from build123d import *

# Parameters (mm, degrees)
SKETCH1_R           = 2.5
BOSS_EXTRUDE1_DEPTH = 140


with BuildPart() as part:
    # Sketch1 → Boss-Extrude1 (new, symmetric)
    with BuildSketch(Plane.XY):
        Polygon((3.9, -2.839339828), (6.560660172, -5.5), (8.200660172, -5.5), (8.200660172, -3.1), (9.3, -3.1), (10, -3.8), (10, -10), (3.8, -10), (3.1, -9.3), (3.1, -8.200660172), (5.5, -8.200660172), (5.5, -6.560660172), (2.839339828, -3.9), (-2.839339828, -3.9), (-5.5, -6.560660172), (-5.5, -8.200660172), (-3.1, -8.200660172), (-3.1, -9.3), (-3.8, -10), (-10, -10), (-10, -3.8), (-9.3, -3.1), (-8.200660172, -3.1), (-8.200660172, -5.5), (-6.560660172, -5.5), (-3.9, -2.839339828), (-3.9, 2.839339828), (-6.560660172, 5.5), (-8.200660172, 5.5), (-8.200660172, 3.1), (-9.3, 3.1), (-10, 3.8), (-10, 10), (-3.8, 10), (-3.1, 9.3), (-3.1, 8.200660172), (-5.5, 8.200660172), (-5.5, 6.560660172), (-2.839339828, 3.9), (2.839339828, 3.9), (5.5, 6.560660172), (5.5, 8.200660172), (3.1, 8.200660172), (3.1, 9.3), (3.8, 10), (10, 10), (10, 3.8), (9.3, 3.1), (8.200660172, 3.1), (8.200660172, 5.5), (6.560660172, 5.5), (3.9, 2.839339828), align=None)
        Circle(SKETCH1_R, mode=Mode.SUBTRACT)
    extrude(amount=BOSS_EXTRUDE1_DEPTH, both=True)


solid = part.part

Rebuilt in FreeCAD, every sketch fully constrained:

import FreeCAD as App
import Part
import Sketcher

V = App.Vector


def add_polygon(sketch, points):
    """Adds a closed chain of lines whose ends are joined by coincident constraints."""
    first, n = sketch.GeometryCount, len(points)
    for a, b in zip(points, points[1:] + points[:1]):
        sketch.addGeometry(Part.LineSegment(App.Vector(*a, 0), App.Vector(*b, 0)), False)
    for i in range(n):
        sketch.addConstraint(Sketcher.Constraint("Coincident", first + i, 2, first + (i + 1) % n, 1))

doc = App.newDocument("Part")
params = doc.addObject("Spreadsheet::Sheet", "Params")
for row, (alias, value) in enumerate([
    ("sketch1_diameter", "5 mm"),
    ("sketch1_width", "6.2 mm"),
    ("sketch1_width2", "2.4 mm"),
    ("sketch1_width3", "1.64 mm"),
    ("pad1_length", "280 mm"),
], start=1):
    params.set(f"A{row}", alias)
    params.set(f"B{row}", "=" + value)
    params.setAlias(f"B{row}", alias)

body = doc.addObject("PartDesign::Body", "Body")

sketch1 = body.newObject("Sketcher::SketchObject", "Sketch")
sketch1.AttachmentSupport = (doc.getObject("XY_Plane"), [""])
sketch1.MapMode = "FlatFace"
add_polygon(sketch1, [(6.6, -5.5), (3.9, -2.8), (3.9, 2.8), (6.6, 5.5), (8.2, 5.5), (8.2, 3.1), (9.3, 3.1), (10, 3.8), (10, 10), (3.8, 10), (3.1, 9.3), (3.1, 8.2), (5.5, 8.2), (5.5, 6.6), (2.8, 3.9), (-2.8, 3.9), (-5.5, 6.6), (-5.5, 8.2), (-3.1, 8.2), (-3.1, 9.3), (-3.8, 10), (-10, 10), (-10, 3.8), (-9.3, 3.1), (-8.2, 3.1), (-8.2, 5.5), (-6.6, 5.5), (-3.9, 2.8), (-3.9, -2.8), (-6.6, -5.5), (-8.2, -5.5), (-8.2, -3.1), (-9.3, -3.1), (-10, -3.8), (-10, -10), (-3.8, -10), (-3.1, -9.3), (-3.1, -8.2), (-5.5, -8.2), (-5.5, -6.6), (-2.8, -3.9), (2.8, -3.9), (5.5, -6.6), (5.5, -8.2), (3.1, -8.2), (3.1, -9.3), (3.8, -10), (10, -10), (10, -3.8), (9.3, -3.1), (8.2, -3.1), (8.2, -5.5)])
sketch1.addGeometry(Part.Circle(V(0, 0, 0), V(0, 0, 1), 2.5), False)
sketch1.addConstraint(Sketcher.Constraint("Vertical", 1))
sketch1.addConstraint(Sketcher.Constraint("Horizontal", 3))
sketch1.addConstraint(Sketcher.Constraint("Vertical", 4))
sketch1.addConstraint(Sketcher.Constraint("Horizontal", 5))
sketch1.addConstraint(Sketcher.Constraint("Vertical", 7))
sketch1.addConstraint(Sketcher.Constraint("Horizontal", 8))
sketch1.addConstraint(Sketcher.Constraint("Vertical", 10))
sketch1.addConstraint(Sketcher.Constraint("Horizontal", 11))
sketch1.addConstraint(Sketcher.Constraint("Vertical", 12))
sketch1.addConstraint(Sketcher.Constraint("Horizontal", 14))
sketch1.addConstraint(Sketcher.Constraint("Vertical", 16))
sketch1.addConstraint(Sketcher.Constraint("Horizontal", 17))
sketch1.addConstraint(Sketcher.Constraint("Vertical", 18))
sketch1.addConstraint(Sketcher.Constraint("Horizontal", 20))
sketch1.addConstraint(Sketcher.Constraint("Vertical", 21))
sketch1.addConstraint(Sketcher.Constraint("Horizontal", 23))
sketch1.addConstraint(Sketcher.Constraint("Vertical", 24))
sketch1.addConstraint(Sketcher.Constraint("Horizontal", 25))
sketch1.addConstraint(Sketcher.Constraint("Vertical", 27))
sketch1.addConstraint(Sketcher.Constraint("Horizontal", 29))
sketch1.addConstraint(Sketcher.Constraint("Vertical", 30))
sketch1.addConstraint(Sketcher.Constraint("Horizontal", 31))
sketch1.addConstraint(Sketcher.Constraint("Vertical", 33))
sketch1.addConstraint(Sketcher.Constraint("Horizontal", 34))
sketch1.addConstraint(Sketcher.Constraint("Vertical", 36))
sketch1.addConstraint(Sketcher.Constraint("Horizontal", 37))
sketch1.addConstraint(Sketcher.Constraint("Vertical", 38))
sketch1.addConstraint(Sketcher.Constraint("Horizontal", 40))
sketch1.addConstraint(Sketcher.Constraint("Vertical", 42))
sketch1.addConstraint(Sketcher.Constraint("Horizontal", 43))
sketch1.addConstraint(Sketcher.Constraint("Vertical", 44))
sketch1.addConstraint(Sketcher.Constraint("Horizontal", 46))
sketch1.addConstraint(Sketcher.Constraint("Vertical", 47))
sketch1.addConstraint(Sketcher.Constraint("Horizontal", 49))
sketch1.addConstraint(Sketcher.Constraint("Vertical", 50))
sketch1.addConstraint(Sketcher.Constraint("Horizontal", 51))
sketch1.addConstraint(Sketcher.Constraint("Coincident", 52, 3, -1, 1))
sketch1.addConstraint(Sketcher.Constraint("Symmetric", 0, 2, 26, 2, -1, 1))
sketch1.addConstraint(Sketcher.Constraint("Symmetric", 2, 2, 28, 2, -1, 1))
sketch1.addConstraint(Sketcher.Constraint("Symmetric", 4, 2, 30, 2, -1, 1))
sketch1.addConstraint(Sketcher.Constraint("Symmetric", 6, 2, 32, 2, -1, 1))
sketch1.addConstraint(Sketcher.Constraint("Symmetric", 8, 2, 34, 2, -1, 1))
sketch1.addConstraint(Sketcher.Constraint("Symmetric", 9, 2, 35, 2, -1, 1))
sketch1.addConstraint(Sketcher.Constraint("Symmetric", 11, 2, 37, 2, -1, 1))
sketch1.addConstraint(Sketcher.Constraint("Symmetric", 13, 2, 39, 2, -1, 1))
sketch1.addConstraint(Sketcher.Constraint("Symmetric", 15, 2, 41, 2, -1, 1))
sketch1.addConstraint(Sketcher.Constraint("Symmetric", 17, 2, 43, 2, -1, 1))
sketch1.addConstraint(Sketcher.Constraint("Symmetric", 19, 2, 45, 2, -1, 1))
sketch1.addConstraint(Sketcher.Constraint("Symmetric", 21, 2, 47, 2, -1, 1))
sketch1.addConstraint(Sketcher.Constraint("Symmetric", 22, 2, 48, 2, -1, 1))
sketch1.addConstraint(Sketcher.Constraint("Symmetric", 24, 2, 50, 2, -1, 1))
sketch1.addConstraint(Sketcher.Constraint("Symmetric", 12, 2, 15, 2, -2))
sketch1.addConstraint(Sketcher.Constraint("Symmetric", 10, 2, 17, 2, -2))
sketch1.addConstraint(Sketcher.Constraint("Symmetric", 8, 2, 19, 2, -2))
sketch1.addConstraint(Sketcher.Constraint("Symmetric", 6, 2, 21, 2, -2))
sketch1.addConstraint(Sketcher.Constraint("Symmetric", 5, 2, 22, 2, -2))
sketch1.addConstraint(Sketcher.Constraint("Symmetric", 3, 2, 24, 2, -2))
sketch1.addConstraint(Sketcher.Constraint("Perpendicular", 0, 2))
sketch1.addConstraint(Sketcher.Constraint("Parallel", 2, 6))
sketch1.addConstraint(Sketcher.Constraint("Parallel", 6, 9))
sketch1.addConstraint(Sketcher.Constraint("Parallel", 9, 13))
sketch1.addConstraint(Sketcher.Constraint("Perpendicular", 13, 15))
sketch1.addConstraint(Sketcher.Constraint("Parallel", 15, 19))
sketch1.addConstraint(Sketcher.Constraint("Parallel", 19, 22))
sketch1.addConstraint(Sketcher.Constraint("Parallel", 22, 26))
sketch1.addConstraint(Sketcher.Constraint("Perpendicular", 26, 28))
sketch1.addConstraint(Sketcher.Constraint("Parallel", 28, 32))
sketch1.addConstraint(Sketcher.Constraint("Parallel", 35, 39))
sketch1.addConstraint(Sketcher.Constraint("Perpendicular", 39, 41))
sketch1.addConstraint(Sketcher.Constraint("Parallel", 41, 45))
sketch1.addConstraint(Sketcher.Constraint("Horizontal", 1, 2, 26, 2))
sketch1.addConstraint(Sketcher.Constraint("Equal", 40, 1))
sketch1.addConstraint(Sketcher.Constraint("Equal", 43, 4))
sketch1.addConstraint(Sketcher.Constraint("Equal", 46, 7))
sketch1.addConstraint(Sketcher.Constraint("Equal", 49, 10))
sketch1.addConstraint(Sketcher.Constraint("Equal", 51, 12))
sketch1.addConstraint(Sketcher.Constraint("Equal", 6, 9))
sketch1.addConstraint(Sketcher.Constraint("Equal", 2, 13))
sketch1.addConstraint(Sketcher.Constraint("Diameter", 52, 5.0))
sketch1.addConstraint(Sketcher.Constraint("DistanceX", 8, 2, 8, 1, 6.2))
sketch1.addConstraint(Sketcher.Constraint("DistanceX", 11, 1, 11, 2, 2.4))
sketch1.addConstraint(Sketcher.Constraint("DistanceX", -1, 1, 6, 2, 10.0))
sketch1.addConstraint(Sketcher.Constraint("DistanceX", 3, 1, 3, 2, 1.64))
sketch1.addConstraint(Sketcher.Constraint("DistanceX", -1, 1, 0, 2, 3.9))
sketch1.addConstraint(Sketcher.Constraint("DistanceY", -1, 1, 2, 2, 5.5))
sketch1.addConstraint(Sketcher.Constraint("DistanceX", 5, 1, 5, 2, 1.09934))
sketch1.setExpression("Constraints[130]", "Params.sketch1_diameter")
sketch1.setExpression("Constraints[131]", "Params.sketch1_width")
sketch1.setExpression("Constraints[132]", "Params.sketch1_width2")
sketch1.setExpression("Constraints[134]", "Params.sketch1_width3")
pad1 = body.newObject("PartDesign::Pad", "Pad")
pad1.Profile = sketch1
pad1.setExpression("Length", "Params.pad1_length")
pad1.Midplane = True

doc.recompute()
